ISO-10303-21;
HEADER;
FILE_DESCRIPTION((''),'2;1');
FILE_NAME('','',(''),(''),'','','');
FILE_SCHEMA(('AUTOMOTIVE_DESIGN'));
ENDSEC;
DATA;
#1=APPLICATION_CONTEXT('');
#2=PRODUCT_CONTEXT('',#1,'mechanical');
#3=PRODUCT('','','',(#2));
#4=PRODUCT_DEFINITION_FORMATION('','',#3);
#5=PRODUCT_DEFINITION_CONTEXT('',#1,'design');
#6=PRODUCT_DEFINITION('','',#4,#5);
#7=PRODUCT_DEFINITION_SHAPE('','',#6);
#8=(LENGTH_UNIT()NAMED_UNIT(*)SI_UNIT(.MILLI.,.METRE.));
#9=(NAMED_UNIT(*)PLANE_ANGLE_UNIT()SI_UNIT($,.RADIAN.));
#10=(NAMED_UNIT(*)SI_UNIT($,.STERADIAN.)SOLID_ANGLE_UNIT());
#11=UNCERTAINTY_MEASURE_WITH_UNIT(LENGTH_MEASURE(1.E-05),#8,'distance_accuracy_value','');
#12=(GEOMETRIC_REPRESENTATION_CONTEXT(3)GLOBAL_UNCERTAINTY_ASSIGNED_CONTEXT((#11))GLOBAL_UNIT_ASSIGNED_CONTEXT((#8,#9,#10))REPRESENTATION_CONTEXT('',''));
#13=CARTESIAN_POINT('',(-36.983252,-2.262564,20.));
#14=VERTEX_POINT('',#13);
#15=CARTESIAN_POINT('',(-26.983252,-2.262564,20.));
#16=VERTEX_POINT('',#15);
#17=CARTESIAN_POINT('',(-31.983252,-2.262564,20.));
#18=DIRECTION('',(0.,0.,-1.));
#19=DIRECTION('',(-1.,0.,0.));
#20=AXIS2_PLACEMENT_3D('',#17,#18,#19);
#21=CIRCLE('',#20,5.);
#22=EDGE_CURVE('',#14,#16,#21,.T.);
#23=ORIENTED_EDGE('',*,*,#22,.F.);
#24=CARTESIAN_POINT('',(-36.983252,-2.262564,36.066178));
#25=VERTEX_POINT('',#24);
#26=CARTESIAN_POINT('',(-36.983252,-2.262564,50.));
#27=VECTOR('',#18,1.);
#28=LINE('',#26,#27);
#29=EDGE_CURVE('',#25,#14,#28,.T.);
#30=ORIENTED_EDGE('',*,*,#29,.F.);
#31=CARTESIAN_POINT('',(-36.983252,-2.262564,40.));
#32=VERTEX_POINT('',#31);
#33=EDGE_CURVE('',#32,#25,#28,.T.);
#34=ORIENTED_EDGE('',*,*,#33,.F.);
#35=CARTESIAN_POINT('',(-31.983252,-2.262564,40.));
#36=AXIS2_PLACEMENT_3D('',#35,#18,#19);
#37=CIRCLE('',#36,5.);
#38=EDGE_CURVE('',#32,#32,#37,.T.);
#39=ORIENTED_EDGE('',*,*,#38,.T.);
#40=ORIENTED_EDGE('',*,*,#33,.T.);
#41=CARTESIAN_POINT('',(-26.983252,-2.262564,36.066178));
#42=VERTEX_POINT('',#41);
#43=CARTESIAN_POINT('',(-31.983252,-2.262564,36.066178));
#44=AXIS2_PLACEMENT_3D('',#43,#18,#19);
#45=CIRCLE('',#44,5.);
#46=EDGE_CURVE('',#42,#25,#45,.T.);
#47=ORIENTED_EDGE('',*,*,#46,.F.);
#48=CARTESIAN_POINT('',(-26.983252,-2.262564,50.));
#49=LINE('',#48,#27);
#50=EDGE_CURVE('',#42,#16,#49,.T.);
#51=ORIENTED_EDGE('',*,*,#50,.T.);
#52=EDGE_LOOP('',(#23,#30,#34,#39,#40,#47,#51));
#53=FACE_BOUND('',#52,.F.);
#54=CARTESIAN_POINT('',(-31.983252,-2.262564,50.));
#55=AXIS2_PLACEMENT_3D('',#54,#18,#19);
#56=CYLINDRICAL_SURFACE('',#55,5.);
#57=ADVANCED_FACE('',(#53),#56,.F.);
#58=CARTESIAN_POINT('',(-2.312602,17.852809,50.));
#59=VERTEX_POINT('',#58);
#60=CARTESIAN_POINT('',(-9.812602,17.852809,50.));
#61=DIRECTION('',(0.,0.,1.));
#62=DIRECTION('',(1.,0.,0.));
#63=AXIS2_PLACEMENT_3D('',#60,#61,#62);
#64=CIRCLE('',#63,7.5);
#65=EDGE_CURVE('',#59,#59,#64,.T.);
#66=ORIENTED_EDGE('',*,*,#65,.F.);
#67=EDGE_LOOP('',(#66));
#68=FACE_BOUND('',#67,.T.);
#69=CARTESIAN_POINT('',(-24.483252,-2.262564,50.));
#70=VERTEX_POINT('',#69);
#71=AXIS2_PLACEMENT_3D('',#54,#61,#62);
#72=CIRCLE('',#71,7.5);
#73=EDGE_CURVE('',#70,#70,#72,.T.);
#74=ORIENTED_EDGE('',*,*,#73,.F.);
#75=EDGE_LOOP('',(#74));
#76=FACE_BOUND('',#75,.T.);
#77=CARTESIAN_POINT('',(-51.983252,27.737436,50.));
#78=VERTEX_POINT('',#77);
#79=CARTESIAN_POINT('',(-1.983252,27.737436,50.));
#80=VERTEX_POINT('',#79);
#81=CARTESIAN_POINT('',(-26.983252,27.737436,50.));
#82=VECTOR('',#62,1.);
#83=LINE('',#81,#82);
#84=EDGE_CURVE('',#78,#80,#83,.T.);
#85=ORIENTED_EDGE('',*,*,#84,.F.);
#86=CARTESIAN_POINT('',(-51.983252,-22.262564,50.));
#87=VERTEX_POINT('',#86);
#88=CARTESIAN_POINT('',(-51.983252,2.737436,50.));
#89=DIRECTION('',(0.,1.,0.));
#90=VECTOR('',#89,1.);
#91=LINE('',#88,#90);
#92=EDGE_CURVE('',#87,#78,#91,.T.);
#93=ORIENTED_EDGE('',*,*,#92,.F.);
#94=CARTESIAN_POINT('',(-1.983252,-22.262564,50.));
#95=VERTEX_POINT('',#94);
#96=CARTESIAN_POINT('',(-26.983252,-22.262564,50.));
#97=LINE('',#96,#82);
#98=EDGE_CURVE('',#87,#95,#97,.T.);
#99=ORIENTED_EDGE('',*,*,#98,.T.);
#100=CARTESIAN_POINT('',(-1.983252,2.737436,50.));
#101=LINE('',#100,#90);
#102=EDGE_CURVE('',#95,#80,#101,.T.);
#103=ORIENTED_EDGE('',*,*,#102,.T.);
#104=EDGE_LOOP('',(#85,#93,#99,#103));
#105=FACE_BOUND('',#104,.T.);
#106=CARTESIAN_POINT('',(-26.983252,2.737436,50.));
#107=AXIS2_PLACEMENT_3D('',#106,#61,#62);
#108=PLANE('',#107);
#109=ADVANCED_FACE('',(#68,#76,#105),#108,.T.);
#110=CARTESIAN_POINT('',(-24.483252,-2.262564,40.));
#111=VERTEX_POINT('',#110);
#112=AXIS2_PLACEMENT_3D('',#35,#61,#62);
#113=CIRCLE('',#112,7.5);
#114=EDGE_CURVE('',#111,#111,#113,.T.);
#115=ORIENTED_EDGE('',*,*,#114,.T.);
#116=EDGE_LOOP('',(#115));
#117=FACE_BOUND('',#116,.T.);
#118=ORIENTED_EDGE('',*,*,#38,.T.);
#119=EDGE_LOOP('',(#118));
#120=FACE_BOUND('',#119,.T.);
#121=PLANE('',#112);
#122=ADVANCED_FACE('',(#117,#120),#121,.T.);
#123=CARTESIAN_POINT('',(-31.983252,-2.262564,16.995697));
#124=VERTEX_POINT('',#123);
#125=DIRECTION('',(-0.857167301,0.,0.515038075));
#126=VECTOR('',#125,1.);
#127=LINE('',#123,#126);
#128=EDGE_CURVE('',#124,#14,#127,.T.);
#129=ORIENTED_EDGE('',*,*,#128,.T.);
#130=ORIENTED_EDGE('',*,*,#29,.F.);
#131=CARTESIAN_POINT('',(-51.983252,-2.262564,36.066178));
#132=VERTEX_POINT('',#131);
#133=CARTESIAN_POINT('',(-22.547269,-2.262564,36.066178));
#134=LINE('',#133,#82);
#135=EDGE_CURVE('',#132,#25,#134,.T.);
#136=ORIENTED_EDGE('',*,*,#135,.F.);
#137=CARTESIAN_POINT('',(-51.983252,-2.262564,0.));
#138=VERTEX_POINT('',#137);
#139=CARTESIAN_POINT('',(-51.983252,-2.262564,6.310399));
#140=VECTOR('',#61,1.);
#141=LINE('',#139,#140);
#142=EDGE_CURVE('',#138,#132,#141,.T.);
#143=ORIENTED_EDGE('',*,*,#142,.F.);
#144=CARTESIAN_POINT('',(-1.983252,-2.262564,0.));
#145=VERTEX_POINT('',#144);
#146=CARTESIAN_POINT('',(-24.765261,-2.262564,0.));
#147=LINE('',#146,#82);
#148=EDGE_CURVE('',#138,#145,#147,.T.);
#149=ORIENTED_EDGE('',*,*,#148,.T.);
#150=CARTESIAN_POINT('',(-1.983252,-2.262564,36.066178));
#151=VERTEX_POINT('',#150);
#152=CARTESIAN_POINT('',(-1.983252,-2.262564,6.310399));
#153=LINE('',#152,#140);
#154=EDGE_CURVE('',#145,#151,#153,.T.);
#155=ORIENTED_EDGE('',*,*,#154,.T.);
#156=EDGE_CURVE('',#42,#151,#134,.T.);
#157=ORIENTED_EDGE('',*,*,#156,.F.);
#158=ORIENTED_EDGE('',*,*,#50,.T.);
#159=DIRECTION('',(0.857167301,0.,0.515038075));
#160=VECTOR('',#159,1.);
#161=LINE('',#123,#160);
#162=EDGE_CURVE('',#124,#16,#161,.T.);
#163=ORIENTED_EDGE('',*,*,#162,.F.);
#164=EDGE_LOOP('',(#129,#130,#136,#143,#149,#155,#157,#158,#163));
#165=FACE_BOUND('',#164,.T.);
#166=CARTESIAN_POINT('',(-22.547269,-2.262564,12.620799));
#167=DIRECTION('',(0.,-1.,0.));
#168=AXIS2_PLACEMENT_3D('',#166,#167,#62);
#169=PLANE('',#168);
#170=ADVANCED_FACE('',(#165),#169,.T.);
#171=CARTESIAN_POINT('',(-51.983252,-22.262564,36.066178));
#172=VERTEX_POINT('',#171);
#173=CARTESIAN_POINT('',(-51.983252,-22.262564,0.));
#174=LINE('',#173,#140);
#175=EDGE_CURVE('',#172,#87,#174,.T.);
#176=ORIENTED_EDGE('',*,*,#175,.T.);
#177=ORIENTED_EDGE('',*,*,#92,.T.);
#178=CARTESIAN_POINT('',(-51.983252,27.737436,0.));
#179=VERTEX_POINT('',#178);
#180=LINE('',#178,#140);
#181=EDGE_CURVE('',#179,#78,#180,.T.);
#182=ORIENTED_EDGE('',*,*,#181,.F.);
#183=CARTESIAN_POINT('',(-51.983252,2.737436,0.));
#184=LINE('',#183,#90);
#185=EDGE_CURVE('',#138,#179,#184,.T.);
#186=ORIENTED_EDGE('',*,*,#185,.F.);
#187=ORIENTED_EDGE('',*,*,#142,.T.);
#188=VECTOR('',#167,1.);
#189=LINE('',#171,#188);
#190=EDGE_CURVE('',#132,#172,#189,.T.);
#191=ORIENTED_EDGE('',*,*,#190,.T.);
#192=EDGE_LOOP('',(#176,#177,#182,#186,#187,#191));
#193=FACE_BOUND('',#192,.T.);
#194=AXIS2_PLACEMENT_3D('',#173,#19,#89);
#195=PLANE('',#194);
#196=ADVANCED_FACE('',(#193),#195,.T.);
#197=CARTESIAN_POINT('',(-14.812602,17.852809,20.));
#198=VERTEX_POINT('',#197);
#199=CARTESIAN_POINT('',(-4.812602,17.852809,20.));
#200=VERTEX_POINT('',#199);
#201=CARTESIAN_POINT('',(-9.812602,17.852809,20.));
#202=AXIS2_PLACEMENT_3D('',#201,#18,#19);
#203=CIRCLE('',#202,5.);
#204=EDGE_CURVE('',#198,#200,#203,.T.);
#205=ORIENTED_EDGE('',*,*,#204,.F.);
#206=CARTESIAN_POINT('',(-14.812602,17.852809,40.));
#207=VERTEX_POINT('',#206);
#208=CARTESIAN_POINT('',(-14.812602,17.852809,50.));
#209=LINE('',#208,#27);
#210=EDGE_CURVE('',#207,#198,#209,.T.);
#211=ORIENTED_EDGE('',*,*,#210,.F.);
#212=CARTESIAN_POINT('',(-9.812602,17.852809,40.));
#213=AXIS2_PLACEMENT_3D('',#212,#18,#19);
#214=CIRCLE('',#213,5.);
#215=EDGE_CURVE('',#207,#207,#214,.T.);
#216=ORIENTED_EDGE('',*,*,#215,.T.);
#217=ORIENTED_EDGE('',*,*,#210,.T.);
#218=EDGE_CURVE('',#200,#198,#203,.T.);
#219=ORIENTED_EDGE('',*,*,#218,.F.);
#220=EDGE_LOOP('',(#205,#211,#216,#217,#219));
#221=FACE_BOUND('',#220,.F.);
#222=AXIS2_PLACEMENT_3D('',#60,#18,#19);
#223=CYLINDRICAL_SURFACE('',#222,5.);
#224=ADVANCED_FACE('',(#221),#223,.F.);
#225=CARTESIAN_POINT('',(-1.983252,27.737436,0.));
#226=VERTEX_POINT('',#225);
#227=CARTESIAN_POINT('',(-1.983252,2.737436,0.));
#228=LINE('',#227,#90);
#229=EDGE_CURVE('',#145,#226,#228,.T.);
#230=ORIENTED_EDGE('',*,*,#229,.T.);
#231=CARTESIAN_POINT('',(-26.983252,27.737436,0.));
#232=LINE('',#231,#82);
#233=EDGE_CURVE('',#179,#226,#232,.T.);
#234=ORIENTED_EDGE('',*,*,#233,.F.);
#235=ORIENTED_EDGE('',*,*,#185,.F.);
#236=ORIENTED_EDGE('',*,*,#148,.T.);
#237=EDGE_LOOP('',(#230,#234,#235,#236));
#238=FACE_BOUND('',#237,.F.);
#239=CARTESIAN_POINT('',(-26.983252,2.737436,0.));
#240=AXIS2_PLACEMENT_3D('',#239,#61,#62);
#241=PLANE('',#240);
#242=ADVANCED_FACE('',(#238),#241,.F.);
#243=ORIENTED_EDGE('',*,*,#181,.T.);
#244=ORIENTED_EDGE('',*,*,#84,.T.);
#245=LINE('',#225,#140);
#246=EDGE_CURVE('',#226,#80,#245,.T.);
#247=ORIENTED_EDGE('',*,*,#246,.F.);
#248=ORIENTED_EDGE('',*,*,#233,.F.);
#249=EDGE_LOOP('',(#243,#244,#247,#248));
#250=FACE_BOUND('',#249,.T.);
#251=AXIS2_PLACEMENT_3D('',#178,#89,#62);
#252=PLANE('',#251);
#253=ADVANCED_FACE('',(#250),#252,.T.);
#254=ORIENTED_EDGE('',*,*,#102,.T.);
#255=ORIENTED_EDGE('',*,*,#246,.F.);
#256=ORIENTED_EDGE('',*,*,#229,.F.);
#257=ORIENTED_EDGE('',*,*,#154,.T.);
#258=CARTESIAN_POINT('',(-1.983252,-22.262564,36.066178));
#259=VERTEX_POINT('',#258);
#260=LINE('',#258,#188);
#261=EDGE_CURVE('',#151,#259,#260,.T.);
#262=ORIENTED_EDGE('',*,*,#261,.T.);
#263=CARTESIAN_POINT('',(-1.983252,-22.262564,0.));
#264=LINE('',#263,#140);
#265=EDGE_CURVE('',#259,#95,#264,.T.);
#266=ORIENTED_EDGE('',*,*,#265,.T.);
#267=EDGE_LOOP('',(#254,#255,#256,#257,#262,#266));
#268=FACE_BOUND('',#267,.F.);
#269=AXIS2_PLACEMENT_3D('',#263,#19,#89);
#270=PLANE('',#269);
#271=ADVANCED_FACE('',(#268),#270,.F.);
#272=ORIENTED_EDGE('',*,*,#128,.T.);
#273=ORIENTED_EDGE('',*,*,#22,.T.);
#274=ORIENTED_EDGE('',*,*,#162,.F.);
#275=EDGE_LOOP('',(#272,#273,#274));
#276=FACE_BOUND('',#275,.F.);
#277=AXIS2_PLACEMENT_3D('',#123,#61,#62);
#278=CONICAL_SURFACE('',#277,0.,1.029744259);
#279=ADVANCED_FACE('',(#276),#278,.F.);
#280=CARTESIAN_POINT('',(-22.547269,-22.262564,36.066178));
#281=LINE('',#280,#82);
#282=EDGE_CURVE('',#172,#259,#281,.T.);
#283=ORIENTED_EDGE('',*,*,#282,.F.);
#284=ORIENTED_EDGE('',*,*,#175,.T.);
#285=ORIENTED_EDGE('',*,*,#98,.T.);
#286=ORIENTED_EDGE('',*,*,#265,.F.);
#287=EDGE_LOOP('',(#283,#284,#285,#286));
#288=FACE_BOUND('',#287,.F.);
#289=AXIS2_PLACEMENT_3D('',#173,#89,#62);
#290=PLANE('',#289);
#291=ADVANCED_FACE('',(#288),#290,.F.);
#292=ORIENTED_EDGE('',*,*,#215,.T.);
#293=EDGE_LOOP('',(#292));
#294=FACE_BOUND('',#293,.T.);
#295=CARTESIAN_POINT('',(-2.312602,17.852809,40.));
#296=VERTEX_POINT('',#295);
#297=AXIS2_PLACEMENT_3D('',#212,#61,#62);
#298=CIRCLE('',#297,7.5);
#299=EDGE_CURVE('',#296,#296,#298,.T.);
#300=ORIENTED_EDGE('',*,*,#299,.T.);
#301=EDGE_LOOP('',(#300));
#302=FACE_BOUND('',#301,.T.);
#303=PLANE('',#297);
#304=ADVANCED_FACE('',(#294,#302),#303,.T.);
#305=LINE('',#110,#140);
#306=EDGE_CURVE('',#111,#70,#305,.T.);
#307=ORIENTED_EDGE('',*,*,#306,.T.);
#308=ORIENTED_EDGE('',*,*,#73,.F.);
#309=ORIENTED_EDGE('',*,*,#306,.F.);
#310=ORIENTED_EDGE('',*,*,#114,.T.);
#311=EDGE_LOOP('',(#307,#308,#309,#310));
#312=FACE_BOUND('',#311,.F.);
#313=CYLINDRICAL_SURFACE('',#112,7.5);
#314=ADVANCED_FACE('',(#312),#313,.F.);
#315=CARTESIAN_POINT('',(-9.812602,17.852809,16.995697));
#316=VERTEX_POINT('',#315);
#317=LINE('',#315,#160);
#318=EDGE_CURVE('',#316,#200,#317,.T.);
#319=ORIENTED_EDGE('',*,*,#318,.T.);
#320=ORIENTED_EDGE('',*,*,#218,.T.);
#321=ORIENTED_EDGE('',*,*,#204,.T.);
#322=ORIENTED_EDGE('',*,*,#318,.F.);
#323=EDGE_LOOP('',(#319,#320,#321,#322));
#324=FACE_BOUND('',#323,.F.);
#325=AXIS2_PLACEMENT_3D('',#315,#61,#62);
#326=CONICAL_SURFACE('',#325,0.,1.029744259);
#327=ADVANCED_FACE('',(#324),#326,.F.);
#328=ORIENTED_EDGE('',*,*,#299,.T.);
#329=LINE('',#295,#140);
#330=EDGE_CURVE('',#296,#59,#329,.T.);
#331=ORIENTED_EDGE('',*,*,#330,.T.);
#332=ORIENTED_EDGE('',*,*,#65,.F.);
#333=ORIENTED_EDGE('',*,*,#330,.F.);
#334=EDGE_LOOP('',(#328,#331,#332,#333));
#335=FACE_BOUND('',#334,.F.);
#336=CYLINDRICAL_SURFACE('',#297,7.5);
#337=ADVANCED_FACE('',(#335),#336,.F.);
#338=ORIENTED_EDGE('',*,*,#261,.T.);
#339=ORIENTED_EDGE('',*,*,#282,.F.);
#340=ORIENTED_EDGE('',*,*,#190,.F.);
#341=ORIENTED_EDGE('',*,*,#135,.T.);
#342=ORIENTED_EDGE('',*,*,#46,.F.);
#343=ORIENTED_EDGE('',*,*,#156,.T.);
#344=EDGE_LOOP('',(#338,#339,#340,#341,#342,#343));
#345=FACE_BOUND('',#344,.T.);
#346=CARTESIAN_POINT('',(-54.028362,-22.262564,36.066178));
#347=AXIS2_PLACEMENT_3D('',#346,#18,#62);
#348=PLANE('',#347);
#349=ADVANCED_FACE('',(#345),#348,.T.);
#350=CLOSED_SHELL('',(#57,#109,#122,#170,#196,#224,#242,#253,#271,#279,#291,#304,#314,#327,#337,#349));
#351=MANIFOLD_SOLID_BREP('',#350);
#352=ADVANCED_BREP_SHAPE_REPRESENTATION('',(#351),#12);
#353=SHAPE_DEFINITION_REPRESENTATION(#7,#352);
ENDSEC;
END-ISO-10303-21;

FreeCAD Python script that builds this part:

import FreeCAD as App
import Part
import Sketcher
from FreeCAD import Vector
Q = App.Units.Quantity


def add_polygon(sketch, points):
    """Adds a closed chain of lines whose ends are joined by coincident constraints."""
    first, n = sketch.GeometryCount, len(points)
    for a, b in zip(points, points[1:] + points[:1]):
        sketch.addGeometry(Part.LineSegment(App.Vector(*a, 0), App.Vector(*b, 0)), False)
    for i in range(n):
        sketch.addConstraint(Sketcher.Constraint("Coincident", first + i, 2, first + (i + 1) % n, 1))

doc = App.newDocument("Part")
params = doc.addObject("Spreadsheet::Sheet", "Params")
for row, (alias, value) in enumerate([
    ("sketch1_width", "50 mm"),
    ("pad1_length", "50 mm"),
    ("sketch2_diameter", "10 mm"),
    ("hole_diameter", "10 mm"),
    ("hole_depth", "30 mm"),
    ("hole_cbore_diameter", "15 mm"),
    ("hole_cbore_depth", "10 mm"),
    ("sketch3_diameter", "10 mm"),
    ("hole2_diameter", "10 mm"),
    ("hole2_depth", "30 mm"),
    ("hole2_cbore_diameter", "15 mm"),
    ("hole2_cbore_depth", "10 mm"),
    ("pocket1_length", "20 mm"),
], start=1):
    params.set(f"A{row}", alias)
    params.set(f"B{row}", "=" + value)
    params.setAlias(f"B{row}", alias)

body = doc.addObject("PartDesign::Body", "Body")

# Sketch on XY plane
sketch1 = body.newObject("Sketcher::SketchObject", "Sketch")
sketch1.AttachmentSupport = (doc.getObject("XY_Plane"), [""])
sketch1.MapMode = "FlatFace"
add_polygon(sketch1, [(-52, 28), (-52, -22), (-2, -22), (-2, 28)])  # lines 0-3
sketch1.addConstraint(Sketcher.Constraint("Vertical", 0))
sketch1.addConstraint(Sketcher.Constraint("Horizontal", 1))
sketch1.addConstraint(Sketcher.Constraint("Vertical", 2))
sketch1.addConstraint(Sketcher.Constraint("Horizontal", 3))
sketch1.addConstraint(Sketcher.Constraint("Equal", 3, 0))
sketch1.addConstraint(Sketcher.Constraint("DistanceX", 1, 1, 1, 2, Q("50 mm")))
sketch1.addConstraint(Sketcher.Constraint("DistanceX", 0, 2, -1, 1, Q("51.983252 mm")))
sketch1.addConstraint(Sketcher.Constraint("DistanceY", 0, 2, -1, 1, Q("22.262564 mm")))
sketch1.setExpression("Constraints[9]", "Params.sketch1_width")
pad1 = body.newObject("PartDesign::Pad", "Pad")
pad1.Profile = sketch1
pad1.setExpression("Length", "Params.pad1_length")

# Sketch on XY plane
sketch2 = body.newObject("Sketcher::SketchObject", "Sketch001")
sketch2.AttachmentSupport = (doc.getObject("XY_Plane"), [""])
sketch2.MapMode = "FlatFace"
sketch2.AttachmentOffset = App.Placement(Vector(0, 0, 50), App.Rotation())
sketch2.addGeometry(Part.Circle(Vector(-32, -2, 0), Vector(0, 0, 1), 5), False)
sketch2.addConstraint(Sketcher.Constraint("Diameter", 0, Q("10 mm")))
sketch2.addConstraint(Sketcher.Constraint("DistanceX", 0, 3, -1, 1, Q("31.983252 mm")))
sketch2.addConstraint(Sketcher.Constraint("DistanceY", 0, 3, -1, 1, Q("2.262564 mm")))
sketch2.setExpression("Constraints[0]", "Params.sketch2_diameter")
doc.recompute()
hole = body.newObject("PartDesign::Hole", "Hole")
hole.Profile = sketch2
hole.ThreadType = "None"
hole.setExpression("Diameter", "Params.hole_diameter")
hole.DepthType = "Dimension"
hole.setExpression("Depth", "Params.hole_depth")
hole.DrillPoint = "Angled"
hole.DrillPointAngle = 118
hole.HoleCutType = "Counterbore"
hole.setExpression("HoleCutDiameter", "Params.hole_cbore_diameter")
hole.setExpression("HoleCutDepth", "Params.hole_cbore_depth")

# Sketch on XY plane
sketch3 = body.newObject("Sketcher::SketchObject", "Sketch002")
sketch3.AttachmentSupport = (doc.getObject("XY_Plane"), [""])
sketch3.MapMode = "FlatFace"
sketch3.AttachmentOffset = App.Placement(Vector(0, 0, 50), App.Rotation())
sketch3.addGeometry(Part.Circle(Vector(-10, 18, 0), Vector(0, 0, 1), 5), False)
sketch3.addConstraint(Sketcher.Constraint("Diameter", 0, Q("10 mm")))
sketch3.addConstraint(Sketcher.Constraint("DistanceX", 0, 3, -1, 1, Q("9.812602 mm")))
sketch3.addConstraint(Sketcher.Constraint("DistanceY", -1, 1, 0, 3, Q("17.852809 mm")))
sketch3.setExpression("Constraints[0]", "Params.sketch3_diameter")
doc.recompute()
hole2 = body.newObject("PartDesign::Hole", "Hole001")
hole2.Profile = sketch3
hole2.ThreadType = "None"
hole2.setExpression("Diameter", "Params.hole2_diameter")
hole2.DepthType = "Dimension"
hole2.setExpression("Depth", "Params.hole2_depth")
hole2.DrillPoint = "Angled"
hole2.DrillPointAngle = 118
hole2.HoleCutType = "Counterbore"
hole2.setExpression("HoleCutDiameter", "Params.hole2_cbore_diameter")
hole2.setExpression("HoleCutDepth", "Params.hole2_cbore_depth")

# Sketch on XZ plane
sketch4 = body.newObject("Sketcher::SketchObject", "Sketch003")
sketch4.AttachmentSupport = (doc.getObject("XZ_Plane"), [""])
sketch4.MapMode = "FlatFace"
sketch4.AttachmentOffset = App.Placement(Vector(0, 0, 22.262564), App.Rotation())
add_polygon(sketch4, [(-54, 36), (-54, -11), (9, -11), (9, 36)])  # lines 0-3
sketch4.addConstraint(Sketcher.Constraint("Vertical", 0))
sketch4.addConstraint(Sketcher.Constraint("Horizontal", 1))
sketch4.addConstraint(Sketcher.Constraint("Vertical", 2))
sketch4.addConstraint(Sketcher.Constraint("Horizontal", 3))
sketch4.addConstraint(Sketcher.Constraint("DistanceY", 0, 2, 0, 1, Q("46.890759 mm")))
sketch4.addConstraint(Sketcher.Constraint("DistanceX", 1, 1, 1, 2, Q("62.962186 mm")))
sketch4.addConstraint(Sketcher.Constraint("DistanceY", 0, 2, -1, 1, Q("10.824581 mm")))
sketch4.addConstraint(Sketcher.Constraint("DistanceX", 0, 2, -1, 1, Q("54.028362 mm")))
pocket1 = body.newObject("PartDesign::Pocket", "Pocket")
pocket1.Profile = sketch4
pocket1.setExpression("Length", "Params.pocket1_length")

doc.recompute()
